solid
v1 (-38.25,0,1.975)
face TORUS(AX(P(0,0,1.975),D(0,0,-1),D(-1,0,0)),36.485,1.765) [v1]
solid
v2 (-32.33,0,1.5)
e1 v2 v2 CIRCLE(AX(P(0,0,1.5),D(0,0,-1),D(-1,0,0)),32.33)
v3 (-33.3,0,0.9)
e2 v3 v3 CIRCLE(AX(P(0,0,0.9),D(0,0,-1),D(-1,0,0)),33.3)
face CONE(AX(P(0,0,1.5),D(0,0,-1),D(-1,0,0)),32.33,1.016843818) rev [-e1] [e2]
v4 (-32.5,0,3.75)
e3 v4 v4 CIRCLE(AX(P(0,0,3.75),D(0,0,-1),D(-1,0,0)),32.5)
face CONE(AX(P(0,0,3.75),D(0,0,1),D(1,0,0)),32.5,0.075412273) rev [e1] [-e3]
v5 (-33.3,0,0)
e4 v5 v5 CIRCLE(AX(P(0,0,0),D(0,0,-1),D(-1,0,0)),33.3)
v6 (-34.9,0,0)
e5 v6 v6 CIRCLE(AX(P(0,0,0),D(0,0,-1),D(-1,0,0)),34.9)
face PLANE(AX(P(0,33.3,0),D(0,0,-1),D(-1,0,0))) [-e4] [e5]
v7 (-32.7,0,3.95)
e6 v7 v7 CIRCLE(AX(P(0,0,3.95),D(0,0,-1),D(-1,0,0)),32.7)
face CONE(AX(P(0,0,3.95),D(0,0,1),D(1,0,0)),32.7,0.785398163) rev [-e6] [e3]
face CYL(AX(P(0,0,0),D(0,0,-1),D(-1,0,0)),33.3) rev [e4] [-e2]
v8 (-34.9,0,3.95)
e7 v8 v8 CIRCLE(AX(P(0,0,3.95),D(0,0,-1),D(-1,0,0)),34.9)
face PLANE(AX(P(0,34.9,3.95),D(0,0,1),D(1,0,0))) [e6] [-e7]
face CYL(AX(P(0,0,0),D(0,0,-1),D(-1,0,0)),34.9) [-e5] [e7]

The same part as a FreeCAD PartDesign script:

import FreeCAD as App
import Part
import Sketcher
Q = App.Units.Quantity


def add_polygon(sketch, points):
    """Adds a closed chain of lines whose ends are joined by coincident constraints."""
    first, n = sketch.GeometryCount, len(points)
    for a, b in zip(points, points[1:] + points[:1]):
        sketch.addGeometry(Part.LineSegment(App.Vector(*a, 0), App.Vector(*b, 0)), False)
    for i in range(n):
        sketch.addConstraint(Sketcher.Constraint("Coincident", first + i, 2, first + (i + 1) % n, 1))

doc = App.newDocument("Part")
body = doc.addObject("PartDesign::Body", "Body")

sketch1 = body.newObject("Sketcher::SketchObject", "Sketch")
sketch1.AttachmentSupport = (doc.getObject("YZ_Plane"), [""])
sketch1.MapMode = "FlatFace"
add_polygon(sketch1, [(33.3, 0), (34.9, 0), (34.9, 3.95), (32.7, 3.95), (32.5, 3.75), (32.33, 1.5), (33.3, 0.9)])
sketch1.addConstraint([
    Sketcher.Constraint("Horizontal", 0),
    Sketcher.Constraint("Vertical", 1),
    Sketcher.Constraint("Horizontal", 2),
    Sketcher.Constraint("Vertical", 6),
    Sketcher.Constraint("PointOnObject", 0, 2, -1),
    Sketcher.Constraint("Angle", 3, Q("-135 deg")),
    Sketcher.Constraint("DistanceX", 0, 1, 0, 2, Q("1.6 mm")),
    Sketcher.Constraint("DistanceX", 2, 2, 2, 1, Q("2.2 mm")),
    Sketcher.Constraint("DistanceY", 6, 2, 6, 1, Q("0.9 mm")),
    Sketcher.Constraint("DistanceY", 1, 1, 1, 2, Q("3.95 mm")),
    Sketcher.Constraint("DistanceX", -1, 1, 0, 2, Q("34.9 mm")),
    Sketcher.Constraint("DistanceX", -1, 1, 3, 2, Q("32.5 mm")),
    Sketcher.Constraint("DistanceY", -1, 1, 4, 2, Q("1.5 mm")),
    Sketcher.Constraint("DistanceX", -1, 1, 4, 2, Q("32.33 mm")),
])
revolution = body.newObject("PartDesign::Revolution", "Revolution")
revolution.Profile = sketch1
revolution.ReferenceAxis = (sketch1, ["V_Axis"])
revolution.Angle = 360
body2 = doc.addObject("PartDesign::Body", "Body001")

sketch2 = body2.newObject("Sketcher::SketchObject", "Sketch001")
sketch2.AttachmentSupport = (doc.getObject("YZ_Plane001"), [""])
sketch2.MapMode = "FlatFace"
sketch2.addGeometry(Part.Circle(App.Vector(36.485, 1.975, 0), App.Vector(0, 0, 1), 1.765), False)
sketch2.addConstraint([
    Sketcher.Constraint("Diameter", 0, Q("3.53 mm")),
    Sketcher.Constraint("DistanceX", -1, 1, 0, 3, Q("36.485 mm")),
    Sketcher.Constraint("DistanceY", -1, 1, 0, 3, Q("1.975 mm")),
])
revolution2 = body2.newObject("PartDesign::Revolution", "Revolution001")
revolution2.Profile = sketch2
revolution2.ReferenceAxis = (sketch2, ["V_Axis"])
revolution2.Angle = 360

doc.recompute()
